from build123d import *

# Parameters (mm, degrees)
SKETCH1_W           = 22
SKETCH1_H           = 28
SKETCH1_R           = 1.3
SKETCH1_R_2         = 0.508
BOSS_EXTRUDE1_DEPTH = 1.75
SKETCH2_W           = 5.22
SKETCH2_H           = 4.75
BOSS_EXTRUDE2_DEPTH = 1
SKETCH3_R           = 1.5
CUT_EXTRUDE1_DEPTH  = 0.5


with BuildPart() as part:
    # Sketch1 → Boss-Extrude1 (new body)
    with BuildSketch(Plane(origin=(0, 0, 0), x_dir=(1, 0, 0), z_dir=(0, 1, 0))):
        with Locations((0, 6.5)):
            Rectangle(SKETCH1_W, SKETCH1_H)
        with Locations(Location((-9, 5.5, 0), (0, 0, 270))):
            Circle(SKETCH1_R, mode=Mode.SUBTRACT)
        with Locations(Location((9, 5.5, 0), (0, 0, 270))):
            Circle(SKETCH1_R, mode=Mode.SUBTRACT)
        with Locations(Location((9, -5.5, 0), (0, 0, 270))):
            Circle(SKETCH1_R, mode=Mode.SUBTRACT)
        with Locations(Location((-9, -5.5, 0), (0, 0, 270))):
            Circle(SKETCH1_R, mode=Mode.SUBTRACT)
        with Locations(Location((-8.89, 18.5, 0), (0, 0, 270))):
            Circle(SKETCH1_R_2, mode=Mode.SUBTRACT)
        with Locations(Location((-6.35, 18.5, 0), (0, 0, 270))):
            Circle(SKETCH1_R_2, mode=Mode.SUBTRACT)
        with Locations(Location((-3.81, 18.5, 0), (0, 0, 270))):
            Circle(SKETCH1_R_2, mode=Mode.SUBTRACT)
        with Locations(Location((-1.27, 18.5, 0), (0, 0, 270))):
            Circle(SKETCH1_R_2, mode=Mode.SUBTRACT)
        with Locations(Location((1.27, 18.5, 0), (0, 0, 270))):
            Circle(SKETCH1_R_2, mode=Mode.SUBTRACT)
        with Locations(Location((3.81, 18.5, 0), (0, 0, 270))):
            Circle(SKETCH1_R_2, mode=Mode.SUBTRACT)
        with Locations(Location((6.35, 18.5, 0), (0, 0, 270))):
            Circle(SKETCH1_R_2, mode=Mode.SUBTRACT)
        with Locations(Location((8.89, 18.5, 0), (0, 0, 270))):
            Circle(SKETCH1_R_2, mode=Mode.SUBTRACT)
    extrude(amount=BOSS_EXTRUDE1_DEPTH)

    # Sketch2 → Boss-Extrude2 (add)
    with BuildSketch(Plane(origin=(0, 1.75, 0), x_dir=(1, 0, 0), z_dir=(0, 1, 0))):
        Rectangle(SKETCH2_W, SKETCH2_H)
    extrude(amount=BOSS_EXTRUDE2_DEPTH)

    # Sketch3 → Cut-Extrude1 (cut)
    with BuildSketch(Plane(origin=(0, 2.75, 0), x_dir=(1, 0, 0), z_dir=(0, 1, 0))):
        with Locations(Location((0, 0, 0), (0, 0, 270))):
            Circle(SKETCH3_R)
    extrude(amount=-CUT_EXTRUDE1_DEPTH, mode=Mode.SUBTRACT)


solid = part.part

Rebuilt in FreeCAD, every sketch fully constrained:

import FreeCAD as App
import Part
import Sketcher
Q = App.Units.Quantity


def add_polygon(sketch, points):
    """Adds a closed chain of lines whose ends are joined by coincident constraints."""
    first, n = sketch.GeometryCount, len(points)
    for a, b in zip(points, points[1:] + points[:1]):
        sketch.addGeometry(Part.LineSegment(App.Vector(*a, 0), App.Vector(*b, 0)), False)
    for i in range(n):
        sketch.addConstraint(Sketcher.Constraint("Coincident", first + i, 2, first + (i + 1) % n, 1))

doc = App.newDocument("Part")
params = doc.addObject("Spreadsheet::Sheet", "Params")
for row, (alias, value) in enumerate([
    ("sketch1_diameter", "2.6 mm"),
    ("sketch1_width", "22 mm"),
    ("sketch1_height", "28 mm"),
    ("pad1_length", "1.75 mm"),
    ("sketch2_width", "5.22 mm"),
    ("sketch2_height", "4.75 mm"),
    ("pad2_length", "1 mm"),
    ("sketch3_diameter", "3 mm"),
    ("pocket1_length", "0.5 mm"),
], start=1):
    params.set(f"A{row}", alias)
    params.set(f"B{row}", "=" + value)
    params.setAlias(f"B{row}", alias)

body = doc.addObject("PartDesign::Body", "Body")

# Sketch on XZ plane
sketch1 = body.newObject("Sketcher::SketchObject", "Sketch")
sketch1.AttachmentSupport = (doc.getObject("XZ_Plane"), [""])
sketch1.MapMode = "FlatFace"
add_polygon(sketch1, [(-11, -20.5), (-11, 7.5), (11, 7.5), (11, -20.5)])  # lines 0-3
sketch1.addGeometry(Part.Circle(App.Vector(-9, 5.5, 0), App.Vector(0, 0, 1), 1.3), False)  # 4
sketch1.addGeometry(Part.Circle(App.Vector(-9, -5.5, 0), App.Vector(0, 0, 1), 1.3), False)  # 5
sketch1.addGeometry(Part.Circle(App.Vector(9, 5.5, 0), App.Vector(0, 0, 1), 1.3), False)  # 6
sketch1.addGeometry(Part.Circle(App.Vector(9, -5.5, 0), App.Vector(0, 0, 1), 1.3), False)  # 7
sketch1.addGeometry(Part.Circle(App.Vector(-8.89, -18.5, 0), App.Vector(0, 0, 1), 0.508), False)  # 8
sketch1.addGeometry(Part.Circle(App.Vector(-6.35, -18.5, 0), App.Vector(0, 0, 1), 0.508), False)  # 9
sketch1.addGeometry(Part.Circle(App.Vector(-3.81, -18.5, 0), App.Vector(0, 0, 1), 0.508), False)  # 10
sketch1.addGeometry(Part.Circle(App.Vector(-1.27, -18.5, 0), App.Vector(0, 0, 1), 0.508), False)  # 11
sketch1.addGeometry(Part.Circle(App.Vector(1.27, -18.5, 0), App.Vector(0, 0, 1), 0.508), False)  # 12
sketch1.addGeometry(Part.Circle(App.Vector(3.81, -18.5, 0), App.Vector(0, 0, 1), 0.508), False)  # 13
sketch1.addGeometry(Part.Circle(App.Vector(6.35, -18.5, 0), App.Vector(0, 0, 1), 0.508), False)  # 14
sketch1.addGeometry(Part.Circle(App.Vector(8.89, -18.5, 0), App.Vector(0, 0, 1), 0.508), False)  # 15
sketch1.addConstraint([
    Sketcher.Constraint("Vertical", 0),
    Sketcher.Constraint("Horizontal", 1),
    Sketcher.Constraint("Vertical", 2),
    Sketcher.Constraint("Horizontal", 3),
    Sketcher.Constraint("Equal", 4, 5),
    Sketcher.Constraint("Equal", 5, 6),
    Sketcher.Constraint("Equal", 6, 7),
    Sketcher.Constraint("Equal", 8, 9),
    Sketcher.Constraint("Equal", 9, 10),
    Sketcher.Constraint("Equal", 10, 11),
    Sketcher.Constraint("Equal", 11, 12),
    Sketcher.Constraint("Equal", 12, 13),
    Sketcher.Constraint("Equal", 13, 14),
    Sketcher.Constraint("Equal", 14, 15),
    Sketcher.Constraint("Symmetric", 5, 3, 6, 3, -1, 1),
    Sketcher.Constraint("Symmetric", 4, 3, 7, 3, -1, 1),
    Sketcher.Constraint("Symmetric", 4, 3, 6, 3, -2),
    Sketcher.Constraint("Symmetric", 11, 3, 12, 3, -2),
    Sketcher.Constraint("Symmetric", 10, 3, 13, 3, -2),
    Sketcher.Constraint("Symmetric", 9, 3, 14, 3, -2),
    Sketcher.Constraint("Symmetric", 8, 3, 15, 3, -2),
    Sketcher.Constraint("Horizontal", 8, 3, 9, 3),
    Sketcher.Constraint("Horizontal", 9, 3, 10, 3),
    Sketcher.Constraint("Horizontal", 10, 3, 11, 3),
    Sketcher.Constraint("Diameter", 4, Q("2.6 mm")),
    Sketcher.Constraint("DistanceX", 1, 1, 1, 2, Q("22 mm")),
    Sketcher.Constraint("DistanceY", 0, 1, 0, 2, Q("28 mm")),
    Sketcher.Constraint("Diameter", 8, Q("1.016 mm")),
    Sketcher.Constraint("DistanceX", 4, 3, -1, 1, Q("9 mm")),
    Sketcher.Constraint("DistanceX", 0, 2, -1, 1, Q("11 mm")),
    Sketcher.Constraint("DistanceY", 5, 3, 4, 3, Q("11 mm")),
    Sketcher.Constraint("DistanceY", 8, 3, 5, 3, Q("13 mm")),
    Sketcher.Constraint("DistanceY", 4, 3, 0, 2, Q("2 mm")),
    Sketcher.Constraint("DistanceX", 8, 3, 13, 3, Q("12.7 mm")),
    Sketcher.Constraint("DistanceX", 9, 3, 14, 3, Q("12.7 mm")),
    Sketcher.Constraint("DistanceX", 8, 3, -1, 1, Q("8.89 mm")),
    Sketcher.Constraint("DistanceX", 11, 3, -1, 1, Q("1.27 mm")),
])
sketch1.setExpression("Constraints[28]", "Params.sketch1_diameter")
sketch1.setExpression("Constraints[29]", "Params.sketch1_width")
sketch1.setExpression("Constraints[30]", "Params.sketch1_height")
pad1 = body.newObject("PartDesign::Pad", "Pad")
pad1.Profile = sketch1
pad1.setExpression("Length", "Params.pad1_length")
pad1.Reversed = True

# Sketch on XZ plane
sketch2 = body.newObject("Sketcher::SketchObject", "Sketch001")
sketch2.AttachmentSupport = (doc.getObject("XZ_Plane"), [""])
sketch2.MapMode = "FlatFace"
sketch2.AttachmentOffset = App.Placement(App.Vector(0, 0, -1.75), App.Rotation())
add_polygon(sketch2, [(-2.61, -2.375), (-2.61, 2.375), (2.61, 2.375), (2.61, -2.375)])  # lines 0-3
sketch2.addConstraint([
    Sketcher.Constraint("Vertical", 0),
    Sketcher.Constraint("Horizontal", 1),
    Sketcher.Constraint("Vertical", 2),
    Sketcher.Constraint("Horizontal", 3),
    Sketcher.Constraint("Symmetric", 0, 2, 2, 2, -1, 1),
    Sketcher.Constraint("DistanceX", 1, 1, 1, 2, Q("5.22 mm")),
    Sketcher.Constraint("DistanceY", 0, 1, 0, 2, Q("4.75 mm")),
])
sketch2.setExpression("Constraints[9]", "Params.sketch2_width")
sketch2.setExpression("Constraints[10]", "Params.sketch2_height")
pad2 = body.newObject("PartDesign::Pad", "Pad001")
pad2.Profile = sketch2
pad2.setExpression("Length", "Params.pad2_length")
pad2.Reversed = True

# Sketch on XZ plane
sketch3 = body.newObject("Sketcher::SketchObject", "Sketch002")
sketch3.AttachmentSupport = (doc.getObject("XZ_Plane"), [""])
sketch3.MapMode = "FlatFace"
sketch3.AttachmentOffset = App.Placement(App.Vector(0, 0, -2.75), App.Rotation())
sketch3.addGeometry(Part.Circle(App.Vector(0, 0, 0), App.Vector(0, 0, 1), 1.5), False)
sketch3.addConstraint([
    Sketcher.Constraint("Coincident", 0, 3, -1, 1),
    Sketcher.Constraint("Diameter", 0, Q("3 mm")),
])
sketch3.setExpression("Constraints[1]", "Params.sketch3_diameter")
pocket1 = body.newObject("PartDesign::Pocket", "Pocket")
pocket1.Profile = sketch3
pocket1.setExpression("Length", "Params.pocket1_length")
pocket1.Reversed = True

doc.recompute()
